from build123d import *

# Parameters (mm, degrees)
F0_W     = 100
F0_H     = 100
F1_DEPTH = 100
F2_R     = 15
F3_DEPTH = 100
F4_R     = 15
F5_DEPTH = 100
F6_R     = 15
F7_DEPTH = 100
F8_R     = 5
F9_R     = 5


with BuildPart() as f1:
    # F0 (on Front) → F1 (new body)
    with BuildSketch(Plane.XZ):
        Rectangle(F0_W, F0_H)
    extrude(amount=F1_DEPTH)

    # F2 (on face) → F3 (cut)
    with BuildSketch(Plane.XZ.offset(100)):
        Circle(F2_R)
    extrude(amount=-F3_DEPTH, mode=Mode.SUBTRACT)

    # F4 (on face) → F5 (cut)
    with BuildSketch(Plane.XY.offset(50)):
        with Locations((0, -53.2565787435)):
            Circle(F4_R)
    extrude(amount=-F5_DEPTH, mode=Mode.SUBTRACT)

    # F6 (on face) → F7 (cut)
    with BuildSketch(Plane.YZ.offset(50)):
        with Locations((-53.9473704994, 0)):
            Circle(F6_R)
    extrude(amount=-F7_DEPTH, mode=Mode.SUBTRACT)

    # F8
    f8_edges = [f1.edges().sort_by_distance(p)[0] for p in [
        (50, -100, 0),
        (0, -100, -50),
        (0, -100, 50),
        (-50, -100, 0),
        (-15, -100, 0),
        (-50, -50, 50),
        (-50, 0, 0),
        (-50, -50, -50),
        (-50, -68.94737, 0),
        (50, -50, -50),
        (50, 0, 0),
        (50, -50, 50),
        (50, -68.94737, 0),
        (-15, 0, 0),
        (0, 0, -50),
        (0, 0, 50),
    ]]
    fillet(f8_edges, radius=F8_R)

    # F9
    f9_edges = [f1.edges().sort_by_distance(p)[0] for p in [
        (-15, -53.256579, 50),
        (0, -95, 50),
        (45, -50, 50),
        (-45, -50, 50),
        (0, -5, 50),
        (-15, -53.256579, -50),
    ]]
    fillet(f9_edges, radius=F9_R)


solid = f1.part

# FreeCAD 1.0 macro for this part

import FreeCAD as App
import Part
import Sketcher
from FreeCAD import Vector
Q = App.Units.Quantity


def edges_at(feature, points):
    """Names of the edges that pass closest to the given points."""
    edges = feature.Shape.Edges
    near = lambda p: min(range(len(edges)), key=lambda i: edges[i].distToShape(Part.Vertex(*p))[0])
    return sorted({f"Edge{near(p) + 1}" for p in points})


def add_polygon(sketch, points):
    """Adds a closed chain of lines whose ends are joined by coincident constraints."""
    first, n = sketch.GeometryCount, len(points)
    for a, b in zip(points, points[1:] + points[:1]):
        sketch.addGeometry(Part.LineSegment(App.Vector(*a, 0), App.Vector(*b, 0)), False)
    for i in range(n):
        sketch.addConstraint(Sketcher.Constraint("Coincident", first + i, 2, first + (i + 1) % n, 1))

doc = App.newDocument("Part")
body = doc.addObject("PartDesign::Body", "Body")

# Sketch on XZ plane
sketch1 = body.newObject("Sketcher::SketchObject", "Sketch")
sketch1.AttachmentSupport = (doc.getObject("XZ_Plane"), [""])
sketch1.MapMode = "FlatFace"
add_polygon(sketch1, [(-50, 50), (-50, -50), (50, -50), (50, 50)])  # lines 0-3
sketch1.addConstraint([
    Sketcher.Constraint("Vertical", 0),
    Sketcher.Constraint("Horizontal", 1),
    Sketcher.Constraint("Vertical", 2),
    Sketcher.Constraint("Horizontal", 3),
    Sketcher.Constraint("Symmetric", 0, 2, 2, 2, -1, 1),
    Sketcher.Constraint("Equal", 3, 0),
    Sketcher.Constraint("DistanceX", 1, 1, 1, 2, Q("100 mm")),
])
pad1 = body.newObject("PartDesign::Pad", "Pad")
pad1.Profile = sketch1
pad1.Length = 100

# Sketch on XZ plane
sketch2 = body.newObject("Sketcher::SketchObject", "Sketch001")
sketch2.AttachmentSupport = (doc.getObject("XZ_Plane"), [""])
sketch2.MapMode = "FlatFace"
sketch2.AttachmentOffset = App.Placement(Vector(0, 0, 100), App.Rotation())
sketch2.addGeometry(Part.Circle(Vector(0, 0, 0), Vector(0, 0, 1), 15), False)
sketch2.addConstraint([
    Sketcher.Constraint("Coincident", 0, 3, -1, 1),
    Sketcher.Constraint("Diameter", 0, Q("30 mm")),
])
pocket1 = body.newObject("PartDesign::Pocket", "Pocket")
pocket1.Profile = sketch2
pocket1.Length = 100

# Sketch on XY plane
sketch3 = body.newObject("Sketcher::SketchObject", "Sketch002")
sketch3.AttachmentSupport = (doc.getObject("XY_Plane"), [""])
sketch3.MapMode = "FlatFace"
sketch3.AttachmentOffset = App.Placement(Vector(0, 0, 50), App.Rotation())
sketch3.addGeometry(Part.Circle(Vector(0, -53, 0), Vector(0, 0, 1), 15), False)
sketch3.addConstraint([
    Sketcher.Constraint("PointOnObject", 0, 3, -2),
    Sketcher.Constraint("Diameter", 0, Q("30 mm")),
    Sketcher.Constraint("DistanceY", 0, 3, -1, 1, Q("53.256579 mm")),
])
pocket2 = body.newObject("PartDesign::Pocket", "Pocket001")
pocket2.Profile = sketch3
pocket2.Length = 100

# Sketch on YZ plane
sketch4 = body.newObject("Sketcher::SketchObject", "Sketch003")
sketch4.AttachmentSupport = (doc.getObject("YZ_Plane"), [""])
sketch4.MapMode = "FlatFace"
sketch4.AttachmentOffset = App.Placement(Vector(0, 0, 50), App.Rotation())
sketch4.addGeometry(Part.Circle(Vector(-54, 0, 0), Vector(0, 0, 1), 15), False)
sketch4.addConstraint([
    Sketcher.Constraint("PointOnObject", 0, 3, -1),
    Sketcher.Constraint("Diameter", 0, Q("30 mm")),
    Sketcher.Constraint("DistanceX", 0, 3, -1, 1, Q("53.94737 mm")),
])
pocket3 = body.newObject("PartDesign::Pocket", "Pocket002")
pocket3.Profile = sketch4
pocket3.Length = 100
doc.recompute()

fillet = body.newObject("PartDesign::Fillet", "Fillet")
fillet.Base = (pocket3, edges_at(pocket3, [
    (50, -100, 0),
    (0, -100, -50),
    (0, -100, 50),
    (-50, -100, 0),
    (-15, -100, 0),
    (-50, -50, 50),
    (-50, 0, 0),
    (-50, -50, -50),
    (-50, -68.947, 0),
    (50, -50, -50),
    (50, 0, 0),
    (50, -50, 50),
    (50, -68.947, 0),
    (-15, 0, 0),
    (0, 0, -50),
    (0, 0, 50),
]))
fillet.Radius = 5
doc.recompute()

fillet2 = body.newObject("PartDesign::Fillet", "Fillet001")
fillet2.Base = (fillet, edges_at(fillet, [
    (-15, -53.257, 50),
    (0, -95, 50),
    (45, -50, 50),
    (-45, -50, 50),
    (0, -5, 50),
    (-15, -53.257, -50),
]))
fillet2.Radius = 5

doc.recompute()
